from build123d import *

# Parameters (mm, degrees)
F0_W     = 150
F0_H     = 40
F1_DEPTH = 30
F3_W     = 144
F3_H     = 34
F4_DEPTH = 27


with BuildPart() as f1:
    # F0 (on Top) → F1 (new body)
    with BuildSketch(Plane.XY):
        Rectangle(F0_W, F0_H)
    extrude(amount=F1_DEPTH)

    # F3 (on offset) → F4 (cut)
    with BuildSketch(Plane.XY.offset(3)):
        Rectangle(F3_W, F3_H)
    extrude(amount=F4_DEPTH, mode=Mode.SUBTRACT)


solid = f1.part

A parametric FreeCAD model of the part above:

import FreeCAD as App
import Part
import Sketcher
Q = App.Units.Quantity

doc = App.newDocument("Part")
params = doc.addObject("Spreadsheet::Sheet", "Params")
for row, (alias, value) in enumerate([
    ("sketch1_width", "150 mm"),
    ("sketch1_height", "40 mm"),
    ("pad1_length", "30 mm"),
    ("sketch2_width", "144 mm"),
    ("sketch2_height", "34 mm"),
    ("pocket1_length", "27 mm"),
], start=1):
    params.set(f"A{row}", alias)
    params.set(f"B{row}", "=" + value)
    params.setAlias(f"B{row}", alias)

body = doc.addObject("PartDesign::Body", "Body")

sketch1 = body.newObject("Sketcher::SketchObject", "Sketch")
sketch1.AttachmentSupport = (doc.getObject("XY_Plane"), [""])
sketch1.MapMode = "FlatFace"
sketch1.addGeometry(Part.LineSegment(App.Vector(-75, 20, 0), App.Vector(-75, -20, 0)), False)
sketch1.addGeometry(Part.LineSegment(App.Vector(-75, -20, 0), App.Vector(75, -20, 0)), False)
sketch1.addGeometry(Part.LineSegment(App.Vector(75, -20, 0), App.Vector(75, 20, 0)), False)
sketch1.addGeometry(Part.LineSegment(App.Vector(75, 20, 0), App.Vector(-75, 20, 0)), False)
sketch1.addConstraint(Sketcher.Constraint("Coincident", 0, 2, 1, 1))
sketch1.addConstraint(Sketcher.Constraint("Coincident", 1, 2, 2, 1))
sketch1.addConstraint(Sketcher.Constraint("Coincident", 2, 2, 3, 1))
sketch1.addConstraint(Sketcher.Constraint("Coincident", 3, 2, 0, 1))
sketch1.addConstraint(Sketcher.Constraint("Vertical", 0))
sketch1.addConstraint(Sketcher.Constraint("Horizontal", 1))
sketch1.addConstraint(Sketcher.Constraint("Vertical", 2))
sketch1.addConstraint(Sketcher.Constraint("Horizontal", 3))
sketch1.addConstraint(Sketcher.Constraint("Symmetric", 0, 2, 2, 2, -1, 1))
sketch1.addConstraint(Sketcher.Constraint("DistanceX", 1, 1, 1, 2, Q("150 mm")))
sketch1.addConstraint(Sketcher.Constraint("DistanceY", 0, 2, 0, 1, Q("40 mm")))
sketch1.setExpression("Constraints[9]", "Params.sketch1_width")
sketch1.setExpression("Constraints[10]", "Params.sketch1_height")
pad1 = body.newObject("PartDesign::Pad", "Pad")
pad1.Profile = sketch1
pad1.setExpression("Length", "Params.pad1_length")

sketch2 = body.newObject("Sketcher::SketchObject", "Sketch001")
sketch2.AttachmentSupport = (doc.getObject("XY_Plane"), [""])
sketch2.MapMode = "FlatFace"
sketch2.AttachmentOffset = App.Placement(App.Vector(0, 0, 3), App.Rotation())
sketch2.addGeometry(Part.LineSegment(App.Vector(-72, 17, 0), App.Vector(-72, -17, 0)), False)
sketch2.addGeometry(Part.LineSegment(App.Vector(-72, -17, 0), App.Vector(72, -17, 0)), False)
sketch2.addGeometry(Part.LineSegment(App.Vector(72, -17, 0), App.Vector(72, 17, 0)), False)
sketch2.addGeometry(Part.LineSegment(App.Vector(72, 17, 0), App.Vector(-72, 17, 0)), False)
sketch2.addConstraint(Sketcher.Constraint("Coincident", 0, 2, 1, 1))
sketch2.addConstraint(Sketcher.Constraint("Coincident", 1, 2, 2, 1))
sketch2.addConstraint(Sketcher.Constraint("Coincident", 2, 2, 3, 1))
sketch2.addConstraint(Sketcher.Constraint("Coincident", 3, 2, 0, 1))
sketch2.addConstraint(Sketcher.Constraint("Vertical", 0))
sketch2.addConstraint(Sketcher.Constraint("Horizontal", 1))
sketch2.addConstraint(Sketcher.Constraint("Vertical", 2))
sketch2.addConstraint(Sketcher.Constraint("Horizontal", 3))
sketch2.addConstraint(Sketcher.Constraint("Symmetric", 0, 2, 2, 2, -1, 1))
sketch2.addConstraint(Sketcher.Constraint("DistanceX", 1, 1, 1, 2, Q("144 mm")))
sketch2.addConstraint(Sketcher.Constraint("DistanceY", 0, 2, 0, 1, Q("34 mm")))
sketch2.setExpression("Constraints[9]", "Params.sketch2_width")
sketch2.setExpression("Constraints[10]", "Params.sketch2_height")
pocket1 = body.newObject("PartDesign::Pocket", "Pocket")
pocket1.Profile = sketch2
pocket1.setExpression("Length", "Params.pocket1_length")
pocket1.Reversed = True

doc.recompute()
